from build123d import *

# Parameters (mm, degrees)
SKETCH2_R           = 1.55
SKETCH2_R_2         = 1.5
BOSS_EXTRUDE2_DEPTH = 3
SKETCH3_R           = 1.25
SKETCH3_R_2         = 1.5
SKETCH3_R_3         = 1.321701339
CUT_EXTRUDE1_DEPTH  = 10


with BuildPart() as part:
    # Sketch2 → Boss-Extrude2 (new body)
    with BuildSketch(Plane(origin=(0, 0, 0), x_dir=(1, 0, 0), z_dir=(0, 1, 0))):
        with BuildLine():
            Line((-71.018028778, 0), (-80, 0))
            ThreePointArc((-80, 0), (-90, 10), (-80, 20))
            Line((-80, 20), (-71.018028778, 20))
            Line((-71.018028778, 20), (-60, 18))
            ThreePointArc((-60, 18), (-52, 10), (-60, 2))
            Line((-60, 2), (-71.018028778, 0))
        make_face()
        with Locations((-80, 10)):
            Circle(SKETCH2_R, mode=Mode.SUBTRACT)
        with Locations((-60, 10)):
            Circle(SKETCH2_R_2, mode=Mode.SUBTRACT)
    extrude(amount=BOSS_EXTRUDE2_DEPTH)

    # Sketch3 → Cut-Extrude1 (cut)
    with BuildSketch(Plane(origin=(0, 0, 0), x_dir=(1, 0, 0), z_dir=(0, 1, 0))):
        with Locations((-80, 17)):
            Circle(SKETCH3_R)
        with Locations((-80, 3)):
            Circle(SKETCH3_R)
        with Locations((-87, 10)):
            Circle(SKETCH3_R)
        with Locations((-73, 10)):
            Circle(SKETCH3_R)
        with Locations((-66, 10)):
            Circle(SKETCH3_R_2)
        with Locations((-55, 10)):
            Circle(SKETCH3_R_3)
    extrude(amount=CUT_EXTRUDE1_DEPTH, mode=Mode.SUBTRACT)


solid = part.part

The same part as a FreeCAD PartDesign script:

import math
import FreeCAD as App
import Part
import Sketcher
Q = App.Units.Quantity

doc = App.newDocument("Part")
body = doc.addObject("PartDesign::Body", "Body")

sketch1 = body.newObject("Sketcher::SketchObject", "Sketch")
sketch1.AttachmentSupport = (doc.getObject("XZ_Plane"), [""])
sketch1.MapMode = "FlatFace"
sketch1.addGeometry([
    Part.LineSegment(App.Vector(-80, 0, 0), App.Vector(-71, 0, 0)),
    Part.LineSegment(App.Vector(-71, 0, 0), App.Vector(-60, -2, 0)),
    Part.ArcOfCircle(Part.Circle(App.Vector(-60, -10, 0), App.Vector(0, 0, 1), 8), math.radians(-90), math.radians(90)),
    Part.LineSegment(App.Vector(-60, -18, 0), App.Vector(-71, -20, 0)),
    Part.LineSegment(App.Vector(-71, -20, 0), App.Vector(-80, -20, 0)),
    Part.ArcOfCircle(Part.Circle(App.Vector(-80, -10, 0), App.Vector(0, 0, 1), 10), math.radians(90), math.radians(270)),
    Part.Circle(App.Vector(-60, -10, 0), App.Vector(0, 0, 1), 1.5),
    Part.Circle(App.Vector(-80, -10, 0), App.Vector(0, 0, 1), 1.6),
], False)
sketch1.addConstraint([
    Sketcher.Constraint("Coincident", 0, 2, 1, 1),
    Sketcher.Constraint("Coincident", 1, 2, 2, 2),
    Sketcher.Constraint("Coincident", 2, 1, 3, 1),
    Sketcher.Constraint("Coincident", 3, 2, 4, 1),
    Sketcher.Constraint("Tangent", 4, 2, 5, 2),
    Sketcher.Constraint("Tangent", 5, 1, 0, 1),
    Sketcher.Constraint("Horizontal", 0),
    Sketcher.Constraint("Horizontal", 4),
    Sketcher.Constraint("Coincident", 6, 3, 2, 3),
    Sketcher.Constraint("Coincident", 7, 3, 5, 3),
    Sketcher.Constraint("PointOnObject", 0, 2, -1),
    Sketcher.Constraint("Horizontal", 2, 3, 5, 3),
    Sketcher.Constraint("Vertical", 6, 3, 1, 2),
    Sketcher.Constraint("Vertical", 1, 2, 2, 1),
    Sketcher.Constraint("Vertical", 0, 2, 3, 2),
    Sketcher.Constraint("Diameter", 6, Q("3 mm")),
    Sketcher.Constraint("Radius", 2, Q("8 mm")),
    Sketcher.Constraint("Radius", 5, Q("10 mm")),
    Sketcher.Constraint("Diameter", 7, Q("3.1 mm")),
    Sketcher.Constraint("DistanceX", 2, 3, -1, 1, Q("60 mm")),
    Sketcher.Constraint("DistanceX", 5, 3, -1, 1, Q("80 mm")),
    Sketcher.Constraint("DistanceX", 0, 1, 0, 2, Q("8.981971 mm")),
])
pad1 = body.newObject("PartDesign::Pad", "Pad")
pad1.Profile = sketch1
pad1.Length = 3
pad1.Reversed = True

sketch2 = body.newObject("Sketcher::SketchObject", "Sketch001")
sketch2.AttachmentSupport = (doc.getObject("XZ_Plane"), [""])
sketch2.MapMode = "FlatFace"
sketch2.addGeometry([
    Part.Circle(App.Vector(-80, -17, 0), App.Vector(0, 0, 1), 1.2),
    Part.Circle(App.Vector(-80, -3, 0), App.Vector(0, 0, 1), 1.2),
    Part.Circle(App.Vector(-87, -10, 0), App.Vector(0, 0, 1), 1.2),
    Part.Circle(App.Vector(-73, -10, 0), App.Vector(0, 0, 1), 1.2),
    Part.Circle(App.Vector(-66, -10, 0), App.Vector(0, 0, 1), 1.5),
    Part.Circle(App.Vector(-55, -10, 0), App.Vector(0, 0, 1), 1.3),
], False)
sketch2.addConstraint([
    Sketcher.Constraint("Equal", 0, 1),
    Sketcher.Constraint("Equal", 1, 2),
    Sketcher.Constraint("Equal", 2, 3),
    Sketcher.Constraint("Horizontal", 2, 3, 3, 3),
    Sketcher.Constraint("Horizontal", 3, 3, 4, 3),
    Sketcher.Constraint("Horizontal", 4, 3, 5, 3),
    Sketcher.Constraint("Vertical", 0, 3, 1, 3),
    Sketcher.Constraint("Diameter", 4, Q("3 mm")),
    Sketcher.Constraint("Diameter", 0, Q("2.5 mm")),
    Sketcher.Constraint("DistanceX", 0, 3, -1, 1, Q("80 mm")),
    Sketcher.Constraint("DistanceY", 0, 3, -1, 1, Q("17 mm")),
    Sketcher.Constraint("DistanceY", 1, 3, -1, 1, Q("3 mm")),
    Sketcher.Constraint("DistanceX", 2, 3, -1, 1, Q("87 mm")),
    Sketcher.Constraint("DistanceY", 2, 3, -1, 1, Q("10 mm")),
    Sketcher.Constraint("DistanceX", 3, 3, -1, 1, Q("73 mm")),
    Sketcher.Constraint("DistanceX", 4, 3, -1, 1, Q("66 mm")),
    Sketcher.Constraint("DistanceX", 5, 3, -1, 1, Q("55 mm")),
    Sketcher.Constraint("Diameter", 5, Q("2.643403 mm")),
])
pocket1 = body.newObject("PartDesign::Pocket", "Pocket")
pocket1.Profile = sketch2
pocket1.Length = 10

doc.recompute()
